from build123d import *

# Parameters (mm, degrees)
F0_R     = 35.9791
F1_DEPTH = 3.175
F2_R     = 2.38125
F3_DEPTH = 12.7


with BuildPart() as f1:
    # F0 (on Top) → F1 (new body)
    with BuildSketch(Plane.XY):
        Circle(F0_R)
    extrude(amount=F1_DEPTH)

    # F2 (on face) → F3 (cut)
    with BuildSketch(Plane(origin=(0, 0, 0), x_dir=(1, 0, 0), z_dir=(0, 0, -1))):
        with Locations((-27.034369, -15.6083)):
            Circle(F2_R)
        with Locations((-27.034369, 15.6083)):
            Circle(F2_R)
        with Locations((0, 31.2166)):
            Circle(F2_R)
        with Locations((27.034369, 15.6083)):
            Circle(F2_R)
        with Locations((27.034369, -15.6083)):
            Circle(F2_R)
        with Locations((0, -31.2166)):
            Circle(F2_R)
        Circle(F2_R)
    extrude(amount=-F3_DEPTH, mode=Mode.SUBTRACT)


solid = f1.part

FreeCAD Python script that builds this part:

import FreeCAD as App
import Part
import Sketcher
Q = App.Units.Quantity

doc = App.newDocument("Part")
body = doc.addObject("PartDesign::Body", "Body")

# Sketch on XY plane
sketch1 = body.newObject("Sketcher::SketchObject", "Sketch")
sketch1.AttachmentSupport = (doc.getObject("XY_Plane"), [""])
sketch1.MapMode = "FlatFace"
sketch1.addGeometry(Part.Circle(App.Vector(0, 0, 0), App.Vector(0, 0, 1), 36), False)
sketch1.addConstraint([
    Sketcher.Constraint("Coincident", 0, 3, -1, 1),
    Sketcher.Constraint("Diameter", 0, Q("2.833 in")),
])
pad1 = body.newObject("PartDesign::Pad", "Pad")
pad1.Profile = sketch1
pad1.Length = Q("0.125 in")

# Sketch on XY plane
sketch2 = body.newObject("Sketcher::SketchObject", "Sketch001")
sketch2.AttachmentSupport = (doc.getObject("XY_Plane"), [""])
sketch2.MapMode = "FlatFace"
sketch2.addGeometry([
    Part.Circle(App.Vector(-27, 15.6, 0), App.Vector(0, 0, 1), 2.4),  # 0
    Part.Circle(App.Vector(-27, -15.6, 0), App.Vector(0, 0, 1), 2.4),  # 1
    Part.Circle(App.Vector(0, -31.2, 0), App.Vector(0, 0, 1), 2.4),  # 2
    Part.Circle(App.Vector(27, -15.6, 0), App.Vector(0, 0, 1), 2.4),  # 3
    Part.Circle(App.Vector(27, 15.6, 0), App.Vector(0, 0, 1), 2.4),  # 4
    Part.Circle(App.Vector(0, 31.2, 0), App.Vector(0, 0, 1), 2.4),  # 5
    Part.Circle(App.Vector(0, 0, 0), App.Vector(0, 0, 1), 2.4),  # 6
], False)
sketch2.addConstraint([
    Sketcher.Constraint("Coincident", 6, 3, -1, 1),
    Sketcher.Constraint("Equal", 0, 1),
    Sketcher.Constraint("Equal", 1, 2),
    Sketcher.Constraint("Equal", 2, 3),
    Sketcher.Constraint("Equal", 3, 4),
    Sketcher.Constraint("Equal", 4, 5),
    Sketcher.Constraint("Equal", 5, 6),
    Sketcher.Constraint("Symmetric", 0, 3, 3, 3, -1, 1),
    Sketcher.Constraint("Symmetric", 1, 3, 4, 3, -1, 1),
    Sketcher.Constraint("Symmetric", 2, 3, 5, 3, -1, 1),
    Sketcher.Constraint("Symmetric", 1, 3, 3, 3, -2),
    Sketcher.Constraint("PointOnObject", 2, 3, -2),
    Sketcher.Constraint("Diameter", 0, Q("0.1875 in")),
    Sketcher.Constraint("DistanceY", 2, 3, -1, 1, Q("1.229 in")),
    Sketcher.Constraint("DistanceY", 1, 3, 0, 3, Q("1.229 in")),
    Sketcher.Constraint("DistanceX", 0, 3, -1, 1, 27.034369),
])
pocket1 = body.newObject("PartDesign::Pocket", "Pocket")
pocket1.Profile = sketch2
pocket1.Length = Q("0.5 in")
pocket1.Reversed = True

doc.recompute()
